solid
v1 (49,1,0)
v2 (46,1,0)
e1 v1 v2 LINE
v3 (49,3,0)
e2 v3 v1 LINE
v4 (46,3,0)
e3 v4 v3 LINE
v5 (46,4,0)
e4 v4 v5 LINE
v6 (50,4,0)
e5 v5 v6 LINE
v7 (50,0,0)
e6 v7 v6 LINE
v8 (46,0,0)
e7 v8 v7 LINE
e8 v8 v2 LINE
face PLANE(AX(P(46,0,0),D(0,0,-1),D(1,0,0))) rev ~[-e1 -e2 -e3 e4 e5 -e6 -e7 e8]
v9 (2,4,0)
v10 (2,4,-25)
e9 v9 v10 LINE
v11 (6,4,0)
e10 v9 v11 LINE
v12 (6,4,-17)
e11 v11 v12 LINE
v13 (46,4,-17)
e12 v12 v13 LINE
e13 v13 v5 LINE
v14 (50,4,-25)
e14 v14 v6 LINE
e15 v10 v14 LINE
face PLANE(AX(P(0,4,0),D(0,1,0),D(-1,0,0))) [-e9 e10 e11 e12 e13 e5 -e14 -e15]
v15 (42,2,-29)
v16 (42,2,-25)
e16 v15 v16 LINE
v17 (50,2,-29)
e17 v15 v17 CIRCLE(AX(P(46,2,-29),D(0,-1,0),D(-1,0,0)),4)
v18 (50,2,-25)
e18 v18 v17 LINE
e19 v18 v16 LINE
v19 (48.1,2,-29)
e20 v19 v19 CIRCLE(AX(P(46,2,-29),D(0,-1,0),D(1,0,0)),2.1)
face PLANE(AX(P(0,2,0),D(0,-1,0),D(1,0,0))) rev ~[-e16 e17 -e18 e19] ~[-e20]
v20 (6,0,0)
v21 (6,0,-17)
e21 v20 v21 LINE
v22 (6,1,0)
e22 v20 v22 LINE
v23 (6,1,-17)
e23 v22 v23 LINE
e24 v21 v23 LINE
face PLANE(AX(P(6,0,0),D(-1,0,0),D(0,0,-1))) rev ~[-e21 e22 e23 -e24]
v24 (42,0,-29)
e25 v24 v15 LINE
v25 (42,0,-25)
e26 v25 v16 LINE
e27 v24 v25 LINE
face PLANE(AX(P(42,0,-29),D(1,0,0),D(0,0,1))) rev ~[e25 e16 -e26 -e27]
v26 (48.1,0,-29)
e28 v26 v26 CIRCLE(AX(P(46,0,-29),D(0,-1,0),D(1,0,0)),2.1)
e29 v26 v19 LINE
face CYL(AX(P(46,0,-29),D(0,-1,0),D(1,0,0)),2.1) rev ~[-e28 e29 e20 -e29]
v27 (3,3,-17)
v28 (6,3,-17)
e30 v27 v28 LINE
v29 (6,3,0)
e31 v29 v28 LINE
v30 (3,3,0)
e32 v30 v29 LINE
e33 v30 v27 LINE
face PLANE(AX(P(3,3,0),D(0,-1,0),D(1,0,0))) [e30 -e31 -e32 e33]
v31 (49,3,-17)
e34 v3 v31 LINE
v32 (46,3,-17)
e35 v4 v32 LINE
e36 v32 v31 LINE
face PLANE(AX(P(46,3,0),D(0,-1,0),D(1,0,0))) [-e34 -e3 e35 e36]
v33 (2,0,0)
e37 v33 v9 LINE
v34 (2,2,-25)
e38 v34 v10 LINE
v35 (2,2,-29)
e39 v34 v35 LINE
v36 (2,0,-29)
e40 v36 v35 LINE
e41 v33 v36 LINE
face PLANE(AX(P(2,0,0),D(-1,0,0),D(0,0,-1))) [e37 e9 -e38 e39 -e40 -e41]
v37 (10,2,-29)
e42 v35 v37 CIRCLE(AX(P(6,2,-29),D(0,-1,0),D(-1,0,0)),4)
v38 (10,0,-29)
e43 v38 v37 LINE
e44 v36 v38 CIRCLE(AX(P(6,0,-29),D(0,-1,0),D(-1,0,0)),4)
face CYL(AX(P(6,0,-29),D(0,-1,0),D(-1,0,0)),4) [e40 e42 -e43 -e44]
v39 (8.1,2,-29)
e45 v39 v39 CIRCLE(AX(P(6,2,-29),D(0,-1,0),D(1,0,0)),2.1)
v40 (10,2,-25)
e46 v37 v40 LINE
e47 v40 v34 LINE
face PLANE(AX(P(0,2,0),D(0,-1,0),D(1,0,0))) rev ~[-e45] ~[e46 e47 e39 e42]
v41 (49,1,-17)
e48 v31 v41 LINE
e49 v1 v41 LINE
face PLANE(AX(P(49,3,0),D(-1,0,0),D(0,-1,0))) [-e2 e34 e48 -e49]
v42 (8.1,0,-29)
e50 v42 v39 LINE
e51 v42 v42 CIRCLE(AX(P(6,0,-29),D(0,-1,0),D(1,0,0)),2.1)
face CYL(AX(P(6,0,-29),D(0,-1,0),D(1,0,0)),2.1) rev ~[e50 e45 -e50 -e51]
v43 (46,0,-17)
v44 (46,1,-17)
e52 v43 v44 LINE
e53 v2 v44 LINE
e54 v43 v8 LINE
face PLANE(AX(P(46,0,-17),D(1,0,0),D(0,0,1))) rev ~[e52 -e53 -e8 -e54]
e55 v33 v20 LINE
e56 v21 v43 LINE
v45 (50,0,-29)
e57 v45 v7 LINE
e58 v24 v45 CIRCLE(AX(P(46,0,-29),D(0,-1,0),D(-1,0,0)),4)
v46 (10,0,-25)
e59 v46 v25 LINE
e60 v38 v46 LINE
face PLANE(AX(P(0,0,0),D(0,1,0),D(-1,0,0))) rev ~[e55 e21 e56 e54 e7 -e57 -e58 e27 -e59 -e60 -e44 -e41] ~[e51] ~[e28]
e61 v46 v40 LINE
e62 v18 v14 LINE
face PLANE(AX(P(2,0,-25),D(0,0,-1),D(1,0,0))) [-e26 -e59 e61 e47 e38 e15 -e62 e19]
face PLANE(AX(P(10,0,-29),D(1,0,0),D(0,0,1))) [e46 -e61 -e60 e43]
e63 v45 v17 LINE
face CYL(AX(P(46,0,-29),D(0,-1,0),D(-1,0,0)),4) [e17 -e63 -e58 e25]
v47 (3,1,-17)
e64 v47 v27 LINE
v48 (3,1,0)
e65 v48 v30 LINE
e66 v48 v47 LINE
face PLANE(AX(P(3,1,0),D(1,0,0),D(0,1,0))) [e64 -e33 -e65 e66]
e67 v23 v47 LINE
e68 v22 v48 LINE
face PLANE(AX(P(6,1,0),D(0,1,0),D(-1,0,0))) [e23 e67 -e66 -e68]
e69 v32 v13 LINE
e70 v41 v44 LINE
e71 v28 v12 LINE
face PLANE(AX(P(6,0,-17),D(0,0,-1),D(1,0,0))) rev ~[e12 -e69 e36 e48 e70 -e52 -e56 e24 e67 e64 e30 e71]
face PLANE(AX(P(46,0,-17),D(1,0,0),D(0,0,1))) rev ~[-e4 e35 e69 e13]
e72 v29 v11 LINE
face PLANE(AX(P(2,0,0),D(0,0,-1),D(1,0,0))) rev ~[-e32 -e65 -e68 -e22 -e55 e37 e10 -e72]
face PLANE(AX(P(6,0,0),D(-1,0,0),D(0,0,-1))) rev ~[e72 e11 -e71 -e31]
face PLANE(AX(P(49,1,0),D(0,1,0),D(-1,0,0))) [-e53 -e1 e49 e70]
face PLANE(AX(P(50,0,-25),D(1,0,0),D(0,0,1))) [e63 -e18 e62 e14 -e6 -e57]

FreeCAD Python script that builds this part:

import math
import FreeCAD as App
import Part
import Sketcher

V = App.Vector

doc = App.newDocument("Part")
body = doc.addObject("PartDesign::Body", "Body")

# Sketch on XZ plane
sketch1 = body.newObject("Sketcher::SketchObject", "Sketch")
sketch1.AttachmentSupport = (doc.getObject("XZ_Plane"), [""])
sketch1.MapMode = "FlatFace"
sketch1.addGeometry(Part.LineSegment(V(50, -25, 0), V(2, -25, 0)), False)
sketch1.addGeometry(Part.LineSegment(V(2, -25, 0), V(2, 0, 0)), False)
sketch1.addGeometry(Part.LineSegment(V(2, 0, 0), V(6, 0, 0)), False)
sketch1.addGeometry(Part.LineSegment(V(6, 0, 0), V(6, -17, 0)), False)
sketch1.addGeometry(Part.LineSegment(V(6, -17, 0), V(46, -17, 0)), False)
sketch1.addGeometry(Part.LineSegment(V(46, -17, 0), V(46, 0, 0)), False)
sketch1.addGeometry(Part.LineSegment(V(46, 0, 0), V(50, 0, 0)), False)
sketch1.addGeometry(Part.LineSegment(V(50, 0, 0), V(50, -25, 0)), False)
sketch1.addConstraint(Sketcher.Constraint("Coincident", 0, 2, 1, 1))
sketch1.addConstraint(Sketcher.Constraint("Coincident", 1, 2, 2, 1))
sketch1.addConstraint(Sketcher.Constraint("Coincident", 2, 2, 3, 1))
sketch1.addConstraint(Sketcher.Constraint("Coincident", 3, 2, 4, 1))
sketch1.addConstraint(Sketcher.Constraint("Coincident", 4, 2, 5, 1))
sketch1.addConstraint(Sketcher.Constraint("Coincident", 5, 2, 6, 1))
sketch1.addConstraint(Sketcher.Constraint("Coincident", 6, 2, 7, 1))
sketch1.addConstraint(Sketcher.Constraint("Coincident", 7, 2, 0, 1))
sketch1.addConstraint(Sketcher.Constraint("Horizontal", 0))
sketch1.addConstraint(Sketcher.Constraint("Vertical", 1))
sketch1.addConstraint(Sketcher.Constraint("Horizontal", 2))
sketch1.addConstraint(Sketcher.Constraint("Vertical", 3))
sketch1.addConstraint(Sketcher.Constraint("Horizontal", 4))
sketch1.addConstraint(Sketcher.Constraint("Vertical", 5))
sketch1.addConstraint(Sketcher.Constraint("Horizontal", 6))
sketch1.addConstraint(Sketcher.Constraint("Vertical", 7))
sketch1.addConstraint(Sketcher.Constraint("PointOnObject", 1, 2, -1))
sketch1.addConstraint(Sketcher.Constraint("PointOnObject", 5, 2, -1))
sketch1.addConstraint(Sketcher.Constraint("Equal", 2, 6))
sketch1.addConstraint(Sketcher.Constraint("DistanceX", 0, 2, 0, 1, 48.0))
sketch1.addConstraint(Sketcher.Constraint("DistanceX", 2, 1, 2, 2, 4.0))
sketch1.addConstraint(Sketcher.Constraint("DistanceY", 1, 1, 1, 2, 25.0))
sketch1.addConstraint(Sketcher.Constraint("DistanceY", 3, 2, 3, 1, 17.0))
sketch1.addConstraint(Sketcher.Constraint("DistanceX", -1, 1, 0, 2, 2.0))
pad1 = body.newObject("PartDesign::Pad", "Pad")
pad1.Profile = sketch1
pad1.Length = 4
pad1.Reversed = True

# Sketch on XZ plane
sketch2 = body.newObject("Sketcher::SketchObject", "Sketch001")
sketch2.AttachmentSupport = (doc.getObject("XZ_Plane"), [""])
sketch2.MapMode = "FlatFace"
sketch2.addGeometry(Part.LineSegment(V(2, -25, 0), V(2, -29, 0)), False)
sketch2.addGeometry(Part.ArcOfCircle(Part.Circle(V(6, -29, 0), V(0, 0, 1), 4), math.radians(180), math.radians(360)), False)
sketch2.addGeometry(Part.LineSegment(V(10, -29, 0), V(10, -25, 0)), False)
sketch2.addGeometry(Part.LineSegment(V(10, -25, 0), V(2, -25, 0)), False)
sketch2.addGeometry(Part.Circle(V(6, -29, 0), V(0, 0, 1), 2.1), False)
sketch2.addGeometry(Part.LineSegment(V(50, -25, 0), V(42, -25, 0)), False)
sketch2.addGeometry(Part.LineSegment(V(42, -25, 0), V(42, -29, 0)), False)
sketch2.addGeometry(Part.ArcOfCircle(Part.Circle(V(46, -29, 0), V(0, 0, 1), 4), math.radians(180), math.radians(360)), False)
sketch2.addGeometry(Part.LineSegment(V(50, -29, 0), V(50, -25, 0)), False)
sketch2.addGeometry(Part.Circle(V(46, -29, 0), V(0, 0, 1), 2.1), False)
sketch2.addConstraint(Sketcher.Constraint("Tangent", 0, 2, 1, 1))
sketch2.addConstraint(Sketcher.Constraint("Tangent", 1, 2, 2, 1))
sketch2.addConstraint(Sketcher.Constraint("Coincident", 2, 2, 3, 1))
sketch2.addConstraint(Sketcher.Constraint("Coincident", 3, 2, 0, 1))
sketch2.addConstraint(Sketcher.Constraint("Coincident", 5, 2, 6, 1))
sketch2.addConstraint(Sketcher.Constraint("Tangent", 6, 2, 7, 1))
sketch2.addConstraint(Sketcher.Constraint("Tangent", 7, 2, 8, 1))
sketch2.addConstraint(Sketcher.Constraint("Coincident", 8, 2, 5, 1))
sketch2.addConstraint(Sketcher.Constraint("Vertical", 0))
sketch2.addConstraint(Sketcher.Constraint("Vertical", 2))
sketch2.addConstraint(Sketcher.Constraint("Horizontal", 3))
sketch2.addConstraint(Sketcher.Constraint("Horizontal", 5))
sketch2.addConstraint(Sketcher.Constraint("Vertical", 6))
sketch2.addConstraint(Sketcher.Constraint("Vertical", 8))
sketch2.addConstraint(Sketcher.Constraint("Coincident", 4, 3, 1, 3))
sketch2.addConstraint(Sketcher.Constraint("Coincident", 9, 3, 7, 3))
sketch2.addConstraint(Sketcher.Constraint("Equal", 1, 7))
sketch2.addConstraint(Sketcher.Constraint("Equal", 4, 9))
sketch2.addConstraint(Sketcher.Constraint("Horizontal", 4, 3, 7, 3))
sketch2.addConstraint(Sketcher.Constraint("Horizontal", 3, 2, 5, 2))
sketch2.addConstraint(Sketcher.Constraint("Radius", 1, 4.0))
sketch2.addConstraint(Sketcher.Constraint("Diameter", 4, 4.2))
sketch2.addConstraint(Sketcher.Constraint("DistanceY", 0, 2, 0, 1, 4.0))
sketch2.addConstraint(Sketcher.Constraint("DistanceX", -1, 1, 1, 3, 6.0))
sketch2.addConstraint(Sketcher.Constraint("DistanceY", 1, 3, -1, 1, 29.0))
sketch2.addConstraint(Sketcher.Constraint("DistanceX", -1, 1, 7, 3, 46.0))
pad2 = body.newObject("PartDesign::Pad", "Pad001")
pad2.Profile = sketch2
pad2.Length = 2
pad2.Reversed = True

# Sketch on XY plane
sketch3 = body.newObject("Sketcher::SketchObject", "Sketch002")
sketch3.AttachmentSupport = (doc.getObject("XY_Plane"), [""])
sketch3.MapMode = "FlatFace"
sketch3.addGeometry(Part.LineSegment(V(3, 1, 0), V(6, 1, 0)), False)
sketch3.addGeometry(Part.LineSegment(V(6, 1, 0), V(6, 3, 0)), False)
sketch3.addGeometry(Part.LineSegment(V(6, 3, 0), V(3, 3, 0)), False)
sketch3.addGeometry(Part.LineSegment(V(3, 3, 0), V(3, 1, 0)), False)
sketch3.addGeometry(Part.LineSegment(V(46, 3, 0), V(46, 1, 0)), False)
sketch3.addGeometry(Part.LineSegment(V(46, 1, 0), V(49, 1, 0)), False)
sketch3.addGeometry(Part.LineSegment(V(49, 1, 0), V(49, 3, 0)), False)
sketch3.addGeometry(Part.LineSegment(V(49, 3, 0), V(46, 3, 0)), False)
sketch3.addConstraint(Sketcher.Constraint("Coincident", 0, 2, 1, 1))
sketch3.addConstraint(Sketcher.Constraint("Coincident", 1, 2, 2, 1))
sketch3.addConstraint(Sketcher.Constraint("Coincident", 2, 2, 3, 1))
sketch3.addConstraint(Sketcher.Constraint("Coincident", 3, 2, 0, 1))
sketch3.addConstraint(Sketcher.Constraint("Coincident", 4, 2, 5, 1))
sketch3.addConstraint(Sketcher.Constraint("Coincident", 5, 2, 6, 1))
sketch3.addConstraint(Sketcher.Constraint("Coincident", 6, 2, 7, 1))
sketch3.addConstraint(Sketcher.Constraint("Coincident", 7, 2, 4, 1))
sketch3.addConstraint(Sketcher.Constraint("Horizontal", 0))
sketch3.addConstraint(Sketcher.Constraint("Vertical", 1))
sketch3.addConstraint(Sketcher.Constraint("Horizontal", 2))
sketch3.addConstraint(Sketcher.Constraint("Vertical", 3))
sketch3.addConstraint(Sketcher.Constraint("Vertical", 4))
sketch3.addConstraint(Sketcher.Constraint("Horizontal", 5))
sketch3.addConstraint(Sketcher.Constraint("Vertical", 6))
sketch3.addConstraint(Sketcher.Constraint("Horizontal", 7))
sketch3.addConstraint(Sketcher.Constraint("Horizontal", 3, 2, 4, 2))
sketch3.addConstraint(Sketcher.Constraint("Horizontal", 2, 2, 6, 2))
sketch3.addConstraint(Sketcher.Constraint("Equal", 2, 5))
sketch3.addConstraint(Sketcher.Constraint("DistanceX", 0, 1, 0, 2, 3.0))
sketch3.addConstraint(Sketcher.Constraint("DistanceY", 1, 1, 1, 2, 2.0))
sketch3.addConstraint(Sketcher.Constraint("DistanceY", -1, 1, 0, 2, 1.0))
sketch3.addConstraint(Sketcher.Constraint("DistanceX", -1, 1, 2, 2, 3.0))
sketch3.addConstraint(Sketcher.Constraint("DistanceX", -1, 1, 4, 2, 46.0))
pocket1 = body.newObject("PartDesign::Pocket", "Pocket")
pocket1.Profile = sketch3
pocket1.Length = 17

doc.recompute()
